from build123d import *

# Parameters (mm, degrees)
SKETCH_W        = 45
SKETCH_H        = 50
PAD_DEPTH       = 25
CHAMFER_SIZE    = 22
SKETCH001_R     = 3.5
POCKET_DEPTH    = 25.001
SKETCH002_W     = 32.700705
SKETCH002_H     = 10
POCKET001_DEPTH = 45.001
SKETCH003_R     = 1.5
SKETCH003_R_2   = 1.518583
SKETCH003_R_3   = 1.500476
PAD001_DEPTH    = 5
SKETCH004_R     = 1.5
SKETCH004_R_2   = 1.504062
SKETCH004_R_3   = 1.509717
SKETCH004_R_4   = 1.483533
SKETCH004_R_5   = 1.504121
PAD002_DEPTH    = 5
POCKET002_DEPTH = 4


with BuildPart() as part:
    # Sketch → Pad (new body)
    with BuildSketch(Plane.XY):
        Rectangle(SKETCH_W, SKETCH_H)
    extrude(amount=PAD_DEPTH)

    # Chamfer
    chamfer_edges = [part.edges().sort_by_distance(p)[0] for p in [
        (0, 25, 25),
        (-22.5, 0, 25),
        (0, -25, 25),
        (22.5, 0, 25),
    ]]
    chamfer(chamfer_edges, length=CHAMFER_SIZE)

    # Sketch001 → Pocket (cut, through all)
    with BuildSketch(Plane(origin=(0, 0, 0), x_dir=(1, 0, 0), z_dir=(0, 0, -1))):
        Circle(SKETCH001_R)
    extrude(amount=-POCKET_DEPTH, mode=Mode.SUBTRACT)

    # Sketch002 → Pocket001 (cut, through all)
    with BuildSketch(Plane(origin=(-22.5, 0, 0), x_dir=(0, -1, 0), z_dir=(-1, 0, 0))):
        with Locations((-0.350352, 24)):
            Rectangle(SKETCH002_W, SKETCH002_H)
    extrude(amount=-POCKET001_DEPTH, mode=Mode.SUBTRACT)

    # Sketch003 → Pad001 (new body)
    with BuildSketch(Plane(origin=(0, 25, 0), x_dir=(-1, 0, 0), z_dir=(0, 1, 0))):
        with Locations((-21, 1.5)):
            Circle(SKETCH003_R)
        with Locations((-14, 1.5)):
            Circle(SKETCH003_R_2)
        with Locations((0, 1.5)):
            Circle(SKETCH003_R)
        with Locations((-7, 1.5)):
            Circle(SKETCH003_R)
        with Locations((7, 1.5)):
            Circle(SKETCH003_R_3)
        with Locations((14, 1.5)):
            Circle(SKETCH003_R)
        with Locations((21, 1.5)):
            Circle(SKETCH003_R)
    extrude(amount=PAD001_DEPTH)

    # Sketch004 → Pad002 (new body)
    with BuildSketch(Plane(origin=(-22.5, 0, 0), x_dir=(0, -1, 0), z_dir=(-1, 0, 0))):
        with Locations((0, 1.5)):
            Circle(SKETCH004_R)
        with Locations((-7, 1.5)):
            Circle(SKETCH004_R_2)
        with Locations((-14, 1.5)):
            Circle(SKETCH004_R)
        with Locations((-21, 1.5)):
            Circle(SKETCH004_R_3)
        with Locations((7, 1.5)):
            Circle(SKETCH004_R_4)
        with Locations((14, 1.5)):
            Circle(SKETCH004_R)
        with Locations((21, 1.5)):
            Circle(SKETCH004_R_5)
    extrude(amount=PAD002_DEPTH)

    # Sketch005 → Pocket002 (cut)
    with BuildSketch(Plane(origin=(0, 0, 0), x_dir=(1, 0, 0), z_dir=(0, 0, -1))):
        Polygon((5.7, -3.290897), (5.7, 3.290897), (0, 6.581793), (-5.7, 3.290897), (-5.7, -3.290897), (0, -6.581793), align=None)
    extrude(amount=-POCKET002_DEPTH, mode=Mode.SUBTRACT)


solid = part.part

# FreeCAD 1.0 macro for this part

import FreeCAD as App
import Part
import Sketcher
from FreeCAD import Vector
Q = App.Units.Quantity


def edges_at(feature, points):
    """Names of the edges that pass closest to the given points."""
    edges = feature.Shape.Edges
    near = lambda p: min(range(len(edges)), key=lambda i: edges[i].distToShape(Part.Vertex(*p))[0])
    return sorted({f"Edge{near(p) + 1}" for p in points})

doc = App.newDocument("Part")
body = doc.addObject("PartDesign::Body", "Body")

# Sketch on XY plane
sketch1 = doc.addObject("Sketcher::SketchObject", "Sketch")
body.addObject(sketch1)
sketch1.AttachmentSupport = (doc.XY_Plane, [""])
sketch1.MapMode = "FlatFace"
sketch1.addGeometry([
    Part.LineSegment(Vector(-22.5, 25, 0), Vector(-22.5, -25, 0)),
    Part.LineSegment(Vector(-22.5, -25, 0), Vector(22.5, -25, 0)),
    Part.LineSegment(Vector(22.5, -25, 0), Vector(22.5, 25, 0)),
    Part.LineSegment(Vector(22.5, 25, 0), Vector(-22.5, 25, 0)),
], False)
sketch1.addConstraint([
    Sketcher.Constraint("Coincident", 0, 2, 1, 1),
    Sketcher.Constraint("Coincident", 1, 2, 2, 1),
    Sketcher.Constraint("Coincident", 2, 2, 3, 1),
    Sketcher.Constraint("Coincident", 3, 2, 0, 1),
    Sketcher.Constraint("Vertical", 0),
    Sketcher.Constraint("Horizontal", 1),
    Sketcher.Constraint("Vertical", 2),
    Sketcher.Constraint("Horizontal", 3),
    Sketcher.Constraint("Symmetric", 0, 2, 2, 2, -1, 1),
    Sketcher.Constraint("DistanceX", 1, 1, 1, 2, Q("45 mm")),
    Sketcher.Constraint("DistanceY", 0, 2, 0, 1, Q("50 mm")),
])
pad1 = doc.addObject("PartDesign::Pad", "Pad")
body.addObject(pad1)
pad1.Profile = sketch1
pad1.Length = 25
doc.recompute()

chamfer = doc.addObject("PartDesign::Chamfer", "Chamfer")
body.addObject(chamfer)
chamfer.Base = (pad1, edges_at(pad1, [
    (0, 25, 25),
    (-22.5, 0, 25),
    (0, -25, 25),
    (22.5, 0, 25),
]))
chamfer.Size = 22

# Sketch on XY plane
sketch2 = doc.addObject("Sketcher::SketchObject", "Sketch001")
body.addObject(sketch2)
sketch2.AttachmentSupport = (doc.XY_Plane, [""])
sketch2.MapMode = "FlatFace"
sketch2.addGeometry(Part.Circle(Vector(0, 0, 0), Vector(0, 0, 1), 3.5), False)
sketch2.addConstraint([
    Sketcher.Constraint("Coincident", 0, 3, -1, 1),
    Sketcher.Constraint("Diameter", 0, Q("7 mm")),
])
pocket1 = doc.addObject("PartDesign::Pocket", "Pocket")
body.addObject(pocket1)
pocket1.Profile = sketch2
pocket1.Type = "ThroughAll"
pocket1.Reversed = True

# Sketch on YZ plane
sketch3 = doc.addObject("Sketcher::SketchObject", "Sketch002")
body.addObject(sketch3)
sketch3.AttachmentSupport = (doc.YZ_Plane, [""])
sketch3.MapMode = "FlatFace"
sketch3.AttachmentOffset = App.Placement(Vector(0, 0, -22.5), App.Rotation())
sketch3.addGeometry([
    Part.LineSegment(Vector(16.700705, 29, 0), Vector(16.700705, 19, 0)),
    Part.LineSegment(Vector(16.700705, 19, 0), Vector(-16, 19, 0)),
    Part.LineSegment(Vector(-16, 19, 0), Vector(-16, 29, 0)),
    Part.LineSegment(Vector(-16, 29, 0), Vector(16.700705, 29, 0)),
], False)
sketch3.addConstraint([
    Sketcher.Constraint("Coincident", 0, 2, 1, 1),
    Sketcher.Constraint("Coincident", 1, 2, 2, 1),
    Sketcher.Constraint("Coincident", 2, 2, 3, 1),
    Sketcher.Constraint("Coincident", 3, 2, 0, 1),
    Sketcher.Constraint("Vertical", 0),
    Sketcher.Constraint("Horizontal", 1),
    Sketcher.Constraint("Vertical", 2),
    Sketcher.Constraint("Horizontal", 3),
    Sketcher.Constraint("DistanceY", 0, 2, 0, 1, Q("10 mm")),
    Sketcher.Constraint("DistanceY", -1, 1, 0, 2, Q("19 mm")),
    Sketcher.Constraint("DistanceX", 1, 2, -1, 1, Q("16 mm")),
    Sketcher.Constraint("DistanceX", 1, 2, 1, 1, Q("32.700705 mm")),
])
pocket2 = doc.addObject("PartDesign::Pocket", "Pocket001")
body.addObject(pocket2)
pocket2.Profile = sketch3
pocket2.Type = "ThroughAll"
pocket2.Reversed = True

# Sketch on XZ plane
sketch4 = doc.addObject("Sketcher::SketchObject", "Sketch003")
body.addObject(sketch4)
sketch4.AttachmentSupport = (doc.XZ_Plane, [""])
sketch4.MapMode = "FlatFace"
sketch4.AttachmentOffset = App.Placement(Vector(0, 0, -25), App.Rotation())
sketch4.addGeometry([
    Part.Circle(Vector(21, 1.5, 0), Vector(0, 0, 1), 1.5),  # 0
    Part.Circle(Vector(14, 1.5, 0), Vector(0, 0, 1), 1.518583),  # 1
    Part.Circle(Vector(0, 1.5, 0), Vector(0, 0, 1), 1.5),  # 2
    Part.Circle(Vector(7, 1.5, 0), Vector(0, 0, 1), 1.5),  # 3
    Part.Circle(Vector(-7, 1.5, 0), Vector(0, 0, 1), 1.500476),  # 4
    Part.Circle(Vector(-14, 1.5, 0), Vector(0, 0, 1), 1.5),  # 5
    Part.Circle(Vector(-21, 1.5, 0), Vector(0, 0, 1), 1.5),  # 6
], False)
sketch4.addConstraint([
    Sketcher.Constraint("Equal", 0, 2),
    Sketcher.Constraint("Equal", 2, 3),
    Sketcher.Constraint("Equal", 3, 5),
    Sketcher.Constraint("Equal", 5, 6),
    Sketcher.Constraint("Symmetric", 3, 3, 4, 3, -2),
    Sketcher.Constraint("Symmetric", 1, 3, 5, 3, -2),
    Sketcher.Constraint("Symmetric", 0, 3, 6, 3, -2),
    Sketcher.Constraint("PointOnObject", 2, 3, -2),
    Sketcher.Constraint("Horizontal", 0, 3, 1, 3),
    Sketcher.Constraint("Horizontal", 1, 3, 2, 3),
    Sketcher.Constraint("Horizontal", 2, 3, 3, 3),
    Sketcher.Constraint("Diameter", 0, Q("3 mm")),
    Sketcher.Constraint("DistanceX", -1, 1, 0, 3, Q("21 mm")),
    Sketcher.Constraint("DistanceX", -1, 1, 1, 3, Q("14 mm")),
    Sketcher.Constraint("DistanceX", -1, 1, 3, 3, Q("7 mm")),
    Sketcher.Constraint("DistanceY", -1, 1, 0, 3, Q("1.5 mm")),
    Sketcher.Constraint("Diameter", 4, Q("3.000952 mm")),
    Sketcher.Constraint("Diameter", 1, Q("3.037166 mm")),
])
pad2 = doc.addObject("PartDesign::Pad", "Pad001")
body.addObject(pad2)
pad2.Profile = sketch4
pad2.Length = 5
pad2.Reversed = True

# Sketch on YZ plane
sketch5 = doc.addObject("Sketcher::SketchObject", "Sketch004")
body.addObject(sketch5)
sketch5.AttachmentSupport = (doc.YZ_Plane, [""])
sketch5.MapMode = "FlatFace"
sketch5.AttachmentOffset = App.Placement(Vector(0, 0, -22.5), App.Rotation())
sketch5.addGeometry([
    Part.Circle(Vector(0, 1.5, 0), Vector(0, 0, 1), 1.5),  # 0
    Part.Circle(Vector(7, 1.5, 0), Vector(0, 0, 1), 1.504062),  # 1
    Part.Circle(Vector(14, 1.5, 0), Vector(0, 0, 1), 1.5),  # 2
    Part.Circle(Vector(21, 1.5, 0), Vector(0, 0, 1), 1.509717),  # 3
    Part.Circle(Vector(-7, 1.5, 0), Vector(0, 0, 1), 1.483533),  # 4
    Part.Circle(Vector(-14, 1.5, 0), Vector(0, 0, 1), 1.5),  # 5
    Part.Circle(Vector(-21, 1.5, 0), Vector(0, 0, 1), 1.504121),  # 6
], False)
sketch5.addConstraint([
    Sketcher.Constraint("Equal", 0, 2),
    Sketcher.Constraint("Equal", 2, 5),
    Sketcher.Constraint("Symmetric", 1, 3, 4, 3, -2),
    Sketcher.Constraint("Symmetric", 2, 3, 5, 3, -2),
    Sketcher.Constraint("Symmetric", 3, 3, 6, 3, -2),
    Sketcher.Constraint("PointOnObject", 0, 3, -2),
    Sketcher.Constraint("Horizontal", 0, 3, 1, 3),
    Sketcher.Constraint("Horizontal", 1, 3, 2, 3),
    Sketcher.Constraint("Horizontal", 2, 3, 3, 3),
    Sketcher.Constraint("Diameter", 0, Q("3 mm")),
    Sketcher.Constraint("DistanceX", -1, 1, 1, 3, Q("7 mm")),
    Sketcher.Constraint("DistanceX", -1, 1, 2, 3, Q("14 mm")),
    Sketcher.Constraint("DistanceX", -1, 1, 3, 3, Q("21 mm")),
    Sketcher.Constraint("DistanceY", -1, 1, 0, 3, Q("1.5 mm")),
    Sketcher.Constraint("Diameter", 1, Q("3.008124 mm")),
    Sketcher.Constraint("Diameter", 3, Q("3.019434 mm")),
    Sketcher.Constraint("Diameter", 4, Q("2.967066 mm")),
    Sketcher.Constraint("Diameter", 6, Q("3.008242 mm")),
])
pad3 = doc.addObject("PartDesign::Pad", "Pad002")
body.addObject(pad3)
pad3.Profile = sketch5
pad3.Length = 5
pad3.Reversed = True

# Sketch on XY plane
sketch6 = doc.addObject("Sketcher::SketchObject", "Sketch005")
body.addObject(sketch6)
sketch6.AttachmentSupport = (doc.XY_Plane, [""])
sketch6.MapMode = "FlatFace"
sketch6.addGeometry([
    Part.LineSegment(Vector(5.7, 3.290897, 0), Vector(5.7, -3.290897, 0)),  # 0
    Part.LineSegment(Vector(5.7, -3.290897, 0), Vector(0, -6.581793, 0)),  # 1
    Part.LineSegment(Vector(0, -6.581793, 0), Vector(-5.7, -3.290897, 0)),  # 2
    Part.LineSegment(Vector(-5.7, -3.290897, 0), Vector(-5.7, 3.290897, 0)),  # 3
    Part.LineSegment(Vector(-5.7, 3.290897, 0), Vector(0, 6.581793, 0)),  # 4
    Part.LineSegment(Vector(0, 6.581793, 0), Vector(5.7, 3.290897, 0)),  # 5
], False)
sketch6.addConstraint([
    Sketcher.Constraint("Coincident", 0, 2, 1, 1),
    Sketcher.Constraint("Coincident", 1, 2, 2, 1),
    Sketcher.Constraint("Coincident", 2, 2, 3, 1),
    Sketcher.Constraint("Coincident", 3, 2, 4, 1),
    Sketcher.Constraint("Coincident", 4, 2, 5, 1),
    Sketcher.Constraint("Coincident", 5, 2, 0, 1),
    Sketcher.Constraint("Vertical", 0),
    Sketcher.Constraint("Vertical", 3),
    Sketcher.Constraint("Symmetric", 0, 2, 3, 2, -1, 1),
    Sketcher.Constraint("Symmetric", 1, 2, 4, 2, -1, 1),
    Sketcher.Constraint("PointOnObject", 1, 2, -2),
    Sketcher.Constraint("Parallel", 2, 5),
    Sketcher.Constraint("Horizontal", 0, 2, 2, 2),
    Sketcher.Constraint("Angle", 1, Q("-150.000004 deg")),
    Sketcher.Constraint("DistanceX", -1, 1, 0, 2, Q("5.7 mm")),
    Sketcher.Constraint("DistanceY", 0, 2, 0, 1, Q("6.581794 mm")),
])
pocket3 = doc.addObject("PartDesign::Pocket", "Pocket002")
body.addObject(pocket3)
pocket3.Profile = sketch6
pocket3.Length = 4
pocket3.Reversed = True

doc.recompute()
